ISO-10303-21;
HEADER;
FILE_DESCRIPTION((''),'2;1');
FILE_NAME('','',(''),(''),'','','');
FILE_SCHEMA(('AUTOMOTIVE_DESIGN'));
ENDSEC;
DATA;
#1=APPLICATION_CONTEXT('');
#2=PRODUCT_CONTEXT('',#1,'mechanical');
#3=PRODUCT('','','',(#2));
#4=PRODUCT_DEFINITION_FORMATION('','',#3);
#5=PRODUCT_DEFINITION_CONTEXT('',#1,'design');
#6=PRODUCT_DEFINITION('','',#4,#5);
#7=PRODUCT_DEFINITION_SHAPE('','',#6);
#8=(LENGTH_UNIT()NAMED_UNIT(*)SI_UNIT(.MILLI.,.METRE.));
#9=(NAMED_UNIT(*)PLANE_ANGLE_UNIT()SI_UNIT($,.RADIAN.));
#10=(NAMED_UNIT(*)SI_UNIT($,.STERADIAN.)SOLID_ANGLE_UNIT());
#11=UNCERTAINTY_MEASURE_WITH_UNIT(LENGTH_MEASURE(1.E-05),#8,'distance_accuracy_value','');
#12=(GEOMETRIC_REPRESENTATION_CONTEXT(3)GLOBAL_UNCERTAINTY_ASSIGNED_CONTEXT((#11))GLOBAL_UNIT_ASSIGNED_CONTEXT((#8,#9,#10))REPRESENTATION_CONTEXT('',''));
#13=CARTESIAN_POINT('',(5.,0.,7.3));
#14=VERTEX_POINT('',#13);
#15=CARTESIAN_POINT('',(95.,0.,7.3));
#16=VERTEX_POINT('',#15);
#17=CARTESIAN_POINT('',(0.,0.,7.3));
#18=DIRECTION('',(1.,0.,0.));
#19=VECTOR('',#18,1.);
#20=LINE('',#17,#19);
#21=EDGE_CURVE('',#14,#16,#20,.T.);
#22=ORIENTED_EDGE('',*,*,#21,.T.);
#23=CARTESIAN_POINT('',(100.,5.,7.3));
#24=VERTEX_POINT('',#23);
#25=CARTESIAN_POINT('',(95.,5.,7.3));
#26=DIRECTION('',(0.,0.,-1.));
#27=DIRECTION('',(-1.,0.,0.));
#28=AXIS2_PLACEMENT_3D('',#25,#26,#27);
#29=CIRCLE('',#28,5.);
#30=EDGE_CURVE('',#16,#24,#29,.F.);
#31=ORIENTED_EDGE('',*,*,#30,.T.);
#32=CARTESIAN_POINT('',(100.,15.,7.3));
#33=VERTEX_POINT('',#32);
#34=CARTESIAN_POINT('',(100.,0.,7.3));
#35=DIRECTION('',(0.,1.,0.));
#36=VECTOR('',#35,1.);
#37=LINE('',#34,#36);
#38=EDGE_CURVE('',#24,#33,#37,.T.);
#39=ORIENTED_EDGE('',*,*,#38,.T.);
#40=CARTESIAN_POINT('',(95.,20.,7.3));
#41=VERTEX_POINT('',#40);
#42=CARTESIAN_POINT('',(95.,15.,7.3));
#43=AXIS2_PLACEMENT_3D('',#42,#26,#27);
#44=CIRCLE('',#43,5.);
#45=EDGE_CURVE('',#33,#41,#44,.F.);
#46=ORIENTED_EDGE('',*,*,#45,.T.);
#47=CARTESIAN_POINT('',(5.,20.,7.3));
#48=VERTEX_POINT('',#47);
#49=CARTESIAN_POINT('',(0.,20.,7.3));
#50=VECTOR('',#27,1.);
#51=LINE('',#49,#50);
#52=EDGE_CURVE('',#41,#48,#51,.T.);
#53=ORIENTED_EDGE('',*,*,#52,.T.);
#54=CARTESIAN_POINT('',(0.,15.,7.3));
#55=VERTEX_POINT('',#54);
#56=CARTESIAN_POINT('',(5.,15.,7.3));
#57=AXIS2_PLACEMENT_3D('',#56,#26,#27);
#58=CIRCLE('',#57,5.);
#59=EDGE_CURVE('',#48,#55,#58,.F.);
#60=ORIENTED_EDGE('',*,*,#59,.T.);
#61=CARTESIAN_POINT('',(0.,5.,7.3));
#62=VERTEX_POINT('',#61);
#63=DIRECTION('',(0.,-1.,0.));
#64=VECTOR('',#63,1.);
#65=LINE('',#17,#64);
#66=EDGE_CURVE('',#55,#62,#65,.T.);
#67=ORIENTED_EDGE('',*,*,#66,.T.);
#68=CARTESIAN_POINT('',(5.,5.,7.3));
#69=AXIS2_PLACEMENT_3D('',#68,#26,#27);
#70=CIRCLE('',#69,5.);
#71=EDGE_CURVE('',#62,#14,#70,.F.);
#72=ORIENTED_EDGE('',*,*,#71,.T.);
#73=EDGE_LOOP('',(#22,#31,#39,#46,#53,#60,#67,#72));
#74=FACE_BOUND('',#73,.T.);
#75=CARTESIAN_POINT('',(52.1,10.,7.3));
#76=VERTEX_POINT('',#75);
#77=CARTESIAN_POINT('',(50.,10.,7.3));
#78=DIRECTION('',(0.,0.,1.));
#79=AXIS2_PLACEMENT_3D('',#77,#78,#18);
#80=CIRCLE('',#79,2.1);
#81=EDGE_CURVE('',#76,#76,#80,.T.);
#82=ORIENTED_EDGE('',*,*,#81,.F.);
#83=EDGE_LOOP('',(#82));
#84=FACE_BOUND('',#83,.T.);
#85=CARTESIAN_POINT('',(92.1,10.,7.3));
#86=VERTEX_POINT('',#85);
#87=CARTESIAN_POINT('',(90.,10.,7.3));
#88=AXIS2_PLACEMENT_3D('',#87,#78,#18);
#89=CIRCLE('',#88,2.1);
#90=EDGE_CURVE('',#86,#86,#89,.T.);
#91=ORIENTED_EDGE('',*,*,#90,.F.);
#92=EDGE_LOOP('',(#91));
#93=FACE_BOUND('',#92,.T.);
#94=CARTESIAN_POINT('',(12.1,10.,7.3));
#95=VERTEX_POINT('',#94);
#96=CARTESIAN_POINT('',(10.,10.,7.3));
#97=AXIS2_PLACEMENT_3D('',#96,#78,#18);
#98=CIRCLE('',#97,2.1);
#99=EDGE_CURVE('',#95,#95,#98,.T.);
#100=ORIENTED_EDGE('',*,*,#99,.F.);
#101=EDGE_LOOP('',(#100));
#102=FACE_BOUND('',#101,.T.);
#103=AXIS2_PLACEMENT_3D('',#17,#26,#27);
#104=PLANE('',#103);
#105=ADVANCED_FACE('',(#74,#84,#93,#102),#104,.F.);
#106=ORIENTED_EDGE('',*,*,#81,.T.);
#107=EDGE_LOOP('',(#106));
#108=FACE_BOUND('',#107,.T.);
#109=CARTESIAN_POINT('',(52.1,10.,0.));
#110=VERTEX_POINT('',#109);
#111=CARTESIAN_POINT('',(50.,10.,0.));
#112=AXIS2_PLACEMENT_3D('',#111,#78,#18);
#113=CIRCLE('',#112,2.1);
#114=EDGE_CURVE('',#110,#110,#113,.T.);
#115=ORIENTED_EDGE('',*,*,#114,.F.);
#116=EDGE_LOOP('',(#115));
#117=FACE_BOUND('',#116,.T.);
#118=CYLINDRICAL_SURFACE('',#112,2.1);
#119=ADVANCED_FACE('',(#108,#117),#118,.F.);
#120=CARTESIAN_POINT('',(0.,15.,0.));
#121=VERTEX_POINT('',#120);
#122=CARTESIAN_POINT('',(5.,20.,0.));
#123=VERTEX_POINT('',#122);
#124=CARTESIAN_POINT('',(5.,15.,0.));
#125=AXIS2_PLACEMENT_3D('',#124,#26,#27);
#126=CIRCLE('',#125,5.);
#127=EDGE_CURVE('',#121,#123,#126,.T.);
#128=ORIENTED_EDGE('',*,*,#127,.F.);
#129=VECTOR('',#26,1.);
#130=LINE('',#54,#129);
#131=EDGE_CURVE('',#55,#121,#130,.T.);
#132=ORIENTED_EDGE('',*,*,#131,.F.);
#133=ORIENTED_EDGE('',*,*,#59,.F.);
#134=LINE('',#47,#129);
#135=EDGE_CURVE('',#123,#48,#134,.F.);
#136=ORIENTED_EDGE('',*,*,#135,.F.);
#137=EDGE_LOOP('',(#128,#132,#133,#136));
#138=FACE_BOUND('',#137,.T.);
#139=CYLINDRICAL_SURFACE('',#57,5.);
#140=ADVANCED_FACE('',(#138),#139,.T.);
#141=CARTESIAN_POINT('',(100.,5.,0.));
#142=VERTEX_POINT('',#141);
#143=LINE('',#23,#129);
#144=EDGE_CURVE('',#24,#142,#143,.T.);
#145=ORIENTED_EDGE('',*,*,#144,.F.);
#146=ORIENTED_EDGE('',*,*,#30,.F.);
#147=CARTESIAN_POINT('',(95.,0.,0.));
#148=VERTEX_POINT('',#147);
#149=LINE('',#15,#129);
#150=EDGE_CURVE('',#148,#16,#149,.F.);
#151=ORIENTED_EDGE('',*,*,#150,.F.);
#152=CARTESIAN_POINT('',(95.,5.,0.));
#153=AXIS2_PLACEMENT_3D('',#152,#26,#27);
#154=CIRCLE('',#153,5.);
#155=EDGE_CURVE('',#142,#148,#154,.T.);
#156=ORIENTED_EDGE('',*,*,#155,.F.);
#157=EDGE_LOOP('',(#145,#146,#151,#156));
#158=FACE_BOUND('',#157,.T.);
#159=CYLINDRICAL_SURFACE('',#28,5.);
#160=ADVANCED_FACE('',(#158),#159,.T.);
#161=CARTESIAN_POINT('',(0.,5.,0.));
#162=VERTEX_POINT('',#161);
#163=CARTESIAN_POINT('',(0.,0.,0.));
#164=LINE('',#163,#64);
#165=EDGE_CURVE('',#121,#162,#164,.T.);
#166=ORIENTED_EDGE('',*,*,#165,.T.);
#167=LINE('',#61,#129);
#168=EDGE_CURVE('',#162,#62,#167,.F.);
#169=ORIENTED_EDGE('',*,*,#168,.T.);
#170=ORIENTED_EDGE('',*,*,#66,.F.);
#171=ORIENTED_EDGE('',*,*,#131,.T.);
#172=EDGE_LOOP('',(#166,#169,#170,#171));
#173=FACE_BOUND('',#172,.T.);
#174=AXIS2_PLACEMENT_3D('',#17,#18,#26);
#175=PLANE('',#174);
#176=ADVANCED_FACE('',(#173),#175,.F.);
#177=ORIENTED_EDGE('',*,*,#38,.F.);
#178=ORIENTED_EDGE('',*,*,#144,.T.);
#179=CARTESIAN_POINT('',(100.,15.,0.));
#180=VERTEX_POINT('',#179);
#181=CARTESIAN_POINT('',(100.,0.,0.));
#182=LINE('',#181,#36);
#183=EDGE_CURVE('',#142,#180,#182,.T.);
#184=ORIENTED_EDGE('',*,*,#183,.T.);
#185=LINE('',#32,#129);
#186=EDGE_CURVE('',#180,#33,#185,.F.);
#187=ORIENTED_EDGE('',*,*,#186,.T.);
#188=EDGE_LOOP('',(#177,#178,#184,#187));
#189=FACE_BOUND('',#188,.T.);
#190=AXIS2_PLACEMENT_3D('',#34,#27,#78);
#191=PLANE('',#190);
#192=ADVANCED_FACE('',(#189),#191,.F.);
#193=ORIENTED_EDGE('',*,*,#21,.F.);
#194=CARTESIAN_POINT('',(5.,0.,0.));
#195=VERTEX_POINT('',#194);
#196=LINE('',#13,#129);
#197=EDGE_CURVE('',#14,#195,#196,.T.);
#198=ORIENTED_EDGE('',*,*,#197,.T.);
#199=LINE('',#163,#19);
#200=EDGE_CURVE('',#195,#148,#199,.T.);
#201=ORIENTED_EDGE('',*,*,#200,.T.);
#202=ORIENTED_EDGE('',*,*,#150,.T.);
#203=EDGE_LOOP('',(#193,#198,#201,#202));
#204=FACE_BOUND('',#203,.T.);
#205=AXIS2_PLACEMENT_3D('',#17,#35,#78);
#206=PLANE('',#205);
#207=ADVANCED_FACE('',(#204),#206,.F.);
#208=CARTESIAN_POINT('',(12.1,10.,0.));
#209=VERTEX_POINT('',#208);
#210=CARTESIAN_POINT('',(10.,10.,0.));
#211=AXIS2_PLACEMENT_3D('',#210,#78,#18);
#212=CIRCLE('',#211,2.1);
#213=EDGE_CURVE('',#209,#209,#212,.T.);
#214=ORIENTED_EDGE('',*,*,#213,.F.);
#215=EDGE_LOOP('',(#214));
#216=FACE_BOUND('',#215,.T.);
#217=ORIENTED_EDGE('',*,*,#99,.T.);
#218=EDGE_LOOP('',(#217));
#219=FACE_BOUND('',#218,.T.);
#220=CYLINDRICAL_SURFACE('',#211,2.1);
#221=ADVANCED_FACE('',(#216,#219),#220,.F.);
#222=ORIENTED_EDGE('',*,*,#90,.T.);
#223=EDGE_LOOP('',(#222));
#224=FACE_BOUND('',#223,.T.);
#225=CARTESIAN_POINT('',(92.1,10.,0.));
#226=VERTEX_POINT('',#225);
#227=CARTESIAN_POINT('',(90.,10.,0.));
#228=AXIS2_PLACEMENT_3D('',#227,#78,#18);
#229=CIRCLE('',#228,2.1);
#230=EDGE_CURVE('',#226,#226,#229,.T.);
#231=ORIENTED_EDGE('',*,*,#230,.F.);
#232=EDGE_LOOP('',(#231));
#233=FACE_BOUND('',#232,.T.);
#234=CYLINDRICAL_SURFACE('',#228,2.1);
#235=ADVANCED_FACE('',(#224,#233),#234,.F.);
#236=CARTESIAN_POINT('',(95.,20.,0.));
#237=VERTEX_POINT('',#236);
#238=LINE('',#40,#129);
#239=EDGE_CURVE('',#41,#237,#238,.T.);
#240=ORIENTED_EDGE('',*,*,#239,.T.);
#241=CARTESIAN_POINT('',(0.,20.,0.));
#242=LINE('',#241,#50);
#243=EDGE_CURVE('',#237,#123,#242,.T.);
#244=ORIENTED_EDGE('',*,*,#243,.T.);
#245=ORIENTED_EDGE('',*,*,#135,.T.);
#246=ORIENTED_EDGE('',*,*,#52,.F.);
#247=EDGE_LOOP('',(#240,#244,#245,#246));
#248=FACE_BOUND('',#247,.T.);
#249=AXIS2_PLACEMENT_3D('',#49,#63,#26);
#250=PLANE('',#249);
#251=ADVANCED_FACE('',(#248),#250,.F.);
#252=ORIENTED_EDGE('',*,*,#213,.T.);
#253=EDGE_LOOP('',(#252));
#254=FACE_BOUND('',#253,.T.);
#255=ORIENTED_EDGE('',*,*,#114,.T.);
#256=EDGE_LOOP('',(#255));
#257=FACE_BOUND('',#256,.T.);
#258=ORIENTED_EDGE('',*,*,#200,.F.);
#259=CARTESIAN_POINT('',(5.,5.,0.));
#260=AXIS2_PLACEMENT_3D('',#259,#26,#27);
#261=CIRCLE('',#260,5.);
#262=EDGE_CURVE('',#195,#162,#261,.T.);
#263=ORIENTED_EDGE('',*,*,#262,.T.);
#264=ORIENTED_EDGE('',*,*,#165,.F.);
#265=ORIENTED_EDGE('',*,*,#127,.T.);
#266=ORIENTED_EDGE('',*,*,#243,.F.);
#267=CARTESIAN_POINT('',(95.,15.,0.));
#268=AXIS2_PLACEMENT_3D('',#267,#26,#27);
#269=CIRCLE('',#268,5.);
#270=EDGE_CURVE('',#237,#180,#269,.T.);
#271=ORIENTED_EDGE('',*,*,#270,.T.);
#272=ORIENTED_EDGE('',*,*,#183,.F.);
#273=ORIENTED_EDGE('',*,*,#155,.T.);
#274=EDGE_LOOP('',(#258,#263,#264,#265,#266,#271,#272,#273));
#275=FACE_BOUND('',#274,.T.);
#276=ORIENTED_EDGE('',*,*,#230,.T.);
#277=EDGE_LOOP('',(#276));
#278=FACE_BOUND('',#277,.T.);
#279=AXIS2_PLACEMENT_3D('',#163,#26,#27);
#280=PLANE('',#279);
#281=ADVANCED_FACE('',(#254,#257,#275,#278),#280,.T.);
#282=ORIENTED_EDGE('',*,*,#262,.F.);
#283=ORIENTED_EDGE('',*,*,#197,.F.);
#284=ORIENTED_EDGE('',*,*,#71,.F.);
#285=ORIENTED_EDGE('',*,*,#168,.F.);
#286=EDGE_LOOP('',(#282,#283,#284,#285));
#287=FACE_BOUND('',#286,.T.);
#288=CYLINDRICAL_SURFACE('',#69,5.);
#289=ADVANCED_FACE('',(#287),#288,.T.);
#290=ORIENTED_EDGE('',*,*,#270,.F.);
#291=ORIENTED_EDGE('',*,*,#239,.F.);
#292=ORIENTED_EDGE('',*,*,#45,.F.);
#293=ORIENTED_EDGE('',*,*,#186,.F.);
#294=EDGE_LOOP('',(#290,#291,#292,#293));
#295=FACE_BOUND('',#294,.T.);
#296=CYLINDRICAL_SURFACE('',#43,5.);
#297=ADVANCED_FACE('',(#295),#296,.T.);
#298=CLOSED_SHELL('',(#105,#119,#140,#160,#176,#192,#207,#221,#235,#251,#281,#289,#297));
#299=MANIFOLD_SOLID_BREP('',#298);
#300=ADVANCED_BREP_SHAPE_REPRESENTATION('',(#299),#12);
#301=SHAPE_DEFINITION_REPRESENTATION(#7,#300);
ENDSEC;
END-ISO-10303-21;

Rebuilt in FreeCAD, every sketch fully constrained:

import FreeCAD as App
import Part
import Sketcher
from FreeCAD import Vector


def edges_at(feature, points):
    """Names of the edges that pass closest to the given points."""
    edges = feature.Shape.Edges
    near = lambda p: min(range(len(edges)), key=lambda i: edges[i].distToShape(Part.Vertex(*p))[0])
    return sorted({f"Edge{near(p) + 1}" for p in points})

doc = App.newDocument("Part")
body = doc.addObject("PartDesign::Body", "Body")

sketch1 = body.newObject("Sketcher::SketchObject", "Sketch")
sketch1.AttachmentSupport = (doc.getObject("XY_Plane"), [""])
sketch1.MapMode = "FlatFace"
sketch1.addGeometry([
    Part.LineSegment(Vector(0, 20, 0), Vector(0, 0, 0)),
    Part.LineSegment(Vector(0, 0, 0), Vector(100, 0, 0)),
    Part.LineSegment(Vector(100, 0, 0), Vector(100, 20, 0)),
    Part.LineSegment(Vector(100, 20, 0), Vector(0, 20, 0)),
], False)
sketch1.addConstraint([
    Sketcher.Constraint("Coincident", 0, 2, 1, 1),
    Sketcher.Constraint("Coincident", 1, 2, 2, 1),
    Sketcher.Constraint("Coincident", 2, 2, 3, 1),
    Sketcher.Constraint("Coincident", 3, 2, 0, 1),
    Sketcher.Constraint("Vertical", 0),
    Sketcher.Constraint("Horizontal", 1),
    Sketcher.Constraint("Vertical", 2),
    Sketcher.Constraint("Horizontal", 3),
    Sketcher.Constraint("Coincident", 0, 2, -1, 1),
    Sketcher.Constraint("DistanceX", 1, 1, 1, 2, 100.0),
    Sketcher.Constraint("DistanceY", 0, 2, 0, 1, 20.0),
])
pad1 = body.newObject("PartDesign::Pad", "Pad")
pad1.Profile = sketch1
pad1.Length = 7.3

sketch2 = body.newObject("Sketcher::SketchObject", "Sketch001")
sketch2.AttachmentSupport = (doc.getObject("XY_Plane"), [""])
sketch2.MapMode = "FlatFace"
sketch2.AttachmentOffset = App.Placement(Vector(0, 0, 7.3), App.Rotation())
sketch2.addGeometry([
    Part.Circle(Vector(10, 10, 0), Vector(0, 0, 1), 2.1),
    Part.Circle(Vector(50, 10, 0), Vector(0, 0, 1), 2.1),
    Part.Circle(Vector(90, 10, 0), Vector(0, 0, 1), 2.1),
], False)
sketch2.addConstraint([
    Sketcher.Constraint("Equal", 0, 1),
    Sketcher.Constraint("Equal", 1, 2),
    Sketcher.Constraint("Horizontal", 0, 3, 1, 3),
    Sketcher.Constraint("Horizontal", 1, 3, 2, 3),
    Sketcher.Constraint("Diameter", 0, 4.2),
    Sketcher.Constraint("DistanceX", -1, 1, 0, 3, 10.0),
    Sketcher.Constraint("DistanceY", -1, 1, 0, 3, 10.0),
    Sketcher.Constraint("DistanceX", -1, 1, 1, 3, 50.0),
    Sketcher.Constraint("DistanceX", -1, 1, 2, 3, 90.0),
])
pocket1 = body.newObject("PartDesign::Pocket", "Pocket")
pocket1.Profile = sketch2
pocket1.Type = "ThroughAll"
doc.recompute()

fillet = body.newObject("PartDesign::Fillet", "Fillet")
fillet.Base = (pocket1, edges_at(pocket1, [
    (0, 20, 3.65),
    (100, 20, 3.65),
    (100, 0, 3.65),
    (0, 0, 3.65),
]))
fillet.Radius = 5

doc.recompute()
